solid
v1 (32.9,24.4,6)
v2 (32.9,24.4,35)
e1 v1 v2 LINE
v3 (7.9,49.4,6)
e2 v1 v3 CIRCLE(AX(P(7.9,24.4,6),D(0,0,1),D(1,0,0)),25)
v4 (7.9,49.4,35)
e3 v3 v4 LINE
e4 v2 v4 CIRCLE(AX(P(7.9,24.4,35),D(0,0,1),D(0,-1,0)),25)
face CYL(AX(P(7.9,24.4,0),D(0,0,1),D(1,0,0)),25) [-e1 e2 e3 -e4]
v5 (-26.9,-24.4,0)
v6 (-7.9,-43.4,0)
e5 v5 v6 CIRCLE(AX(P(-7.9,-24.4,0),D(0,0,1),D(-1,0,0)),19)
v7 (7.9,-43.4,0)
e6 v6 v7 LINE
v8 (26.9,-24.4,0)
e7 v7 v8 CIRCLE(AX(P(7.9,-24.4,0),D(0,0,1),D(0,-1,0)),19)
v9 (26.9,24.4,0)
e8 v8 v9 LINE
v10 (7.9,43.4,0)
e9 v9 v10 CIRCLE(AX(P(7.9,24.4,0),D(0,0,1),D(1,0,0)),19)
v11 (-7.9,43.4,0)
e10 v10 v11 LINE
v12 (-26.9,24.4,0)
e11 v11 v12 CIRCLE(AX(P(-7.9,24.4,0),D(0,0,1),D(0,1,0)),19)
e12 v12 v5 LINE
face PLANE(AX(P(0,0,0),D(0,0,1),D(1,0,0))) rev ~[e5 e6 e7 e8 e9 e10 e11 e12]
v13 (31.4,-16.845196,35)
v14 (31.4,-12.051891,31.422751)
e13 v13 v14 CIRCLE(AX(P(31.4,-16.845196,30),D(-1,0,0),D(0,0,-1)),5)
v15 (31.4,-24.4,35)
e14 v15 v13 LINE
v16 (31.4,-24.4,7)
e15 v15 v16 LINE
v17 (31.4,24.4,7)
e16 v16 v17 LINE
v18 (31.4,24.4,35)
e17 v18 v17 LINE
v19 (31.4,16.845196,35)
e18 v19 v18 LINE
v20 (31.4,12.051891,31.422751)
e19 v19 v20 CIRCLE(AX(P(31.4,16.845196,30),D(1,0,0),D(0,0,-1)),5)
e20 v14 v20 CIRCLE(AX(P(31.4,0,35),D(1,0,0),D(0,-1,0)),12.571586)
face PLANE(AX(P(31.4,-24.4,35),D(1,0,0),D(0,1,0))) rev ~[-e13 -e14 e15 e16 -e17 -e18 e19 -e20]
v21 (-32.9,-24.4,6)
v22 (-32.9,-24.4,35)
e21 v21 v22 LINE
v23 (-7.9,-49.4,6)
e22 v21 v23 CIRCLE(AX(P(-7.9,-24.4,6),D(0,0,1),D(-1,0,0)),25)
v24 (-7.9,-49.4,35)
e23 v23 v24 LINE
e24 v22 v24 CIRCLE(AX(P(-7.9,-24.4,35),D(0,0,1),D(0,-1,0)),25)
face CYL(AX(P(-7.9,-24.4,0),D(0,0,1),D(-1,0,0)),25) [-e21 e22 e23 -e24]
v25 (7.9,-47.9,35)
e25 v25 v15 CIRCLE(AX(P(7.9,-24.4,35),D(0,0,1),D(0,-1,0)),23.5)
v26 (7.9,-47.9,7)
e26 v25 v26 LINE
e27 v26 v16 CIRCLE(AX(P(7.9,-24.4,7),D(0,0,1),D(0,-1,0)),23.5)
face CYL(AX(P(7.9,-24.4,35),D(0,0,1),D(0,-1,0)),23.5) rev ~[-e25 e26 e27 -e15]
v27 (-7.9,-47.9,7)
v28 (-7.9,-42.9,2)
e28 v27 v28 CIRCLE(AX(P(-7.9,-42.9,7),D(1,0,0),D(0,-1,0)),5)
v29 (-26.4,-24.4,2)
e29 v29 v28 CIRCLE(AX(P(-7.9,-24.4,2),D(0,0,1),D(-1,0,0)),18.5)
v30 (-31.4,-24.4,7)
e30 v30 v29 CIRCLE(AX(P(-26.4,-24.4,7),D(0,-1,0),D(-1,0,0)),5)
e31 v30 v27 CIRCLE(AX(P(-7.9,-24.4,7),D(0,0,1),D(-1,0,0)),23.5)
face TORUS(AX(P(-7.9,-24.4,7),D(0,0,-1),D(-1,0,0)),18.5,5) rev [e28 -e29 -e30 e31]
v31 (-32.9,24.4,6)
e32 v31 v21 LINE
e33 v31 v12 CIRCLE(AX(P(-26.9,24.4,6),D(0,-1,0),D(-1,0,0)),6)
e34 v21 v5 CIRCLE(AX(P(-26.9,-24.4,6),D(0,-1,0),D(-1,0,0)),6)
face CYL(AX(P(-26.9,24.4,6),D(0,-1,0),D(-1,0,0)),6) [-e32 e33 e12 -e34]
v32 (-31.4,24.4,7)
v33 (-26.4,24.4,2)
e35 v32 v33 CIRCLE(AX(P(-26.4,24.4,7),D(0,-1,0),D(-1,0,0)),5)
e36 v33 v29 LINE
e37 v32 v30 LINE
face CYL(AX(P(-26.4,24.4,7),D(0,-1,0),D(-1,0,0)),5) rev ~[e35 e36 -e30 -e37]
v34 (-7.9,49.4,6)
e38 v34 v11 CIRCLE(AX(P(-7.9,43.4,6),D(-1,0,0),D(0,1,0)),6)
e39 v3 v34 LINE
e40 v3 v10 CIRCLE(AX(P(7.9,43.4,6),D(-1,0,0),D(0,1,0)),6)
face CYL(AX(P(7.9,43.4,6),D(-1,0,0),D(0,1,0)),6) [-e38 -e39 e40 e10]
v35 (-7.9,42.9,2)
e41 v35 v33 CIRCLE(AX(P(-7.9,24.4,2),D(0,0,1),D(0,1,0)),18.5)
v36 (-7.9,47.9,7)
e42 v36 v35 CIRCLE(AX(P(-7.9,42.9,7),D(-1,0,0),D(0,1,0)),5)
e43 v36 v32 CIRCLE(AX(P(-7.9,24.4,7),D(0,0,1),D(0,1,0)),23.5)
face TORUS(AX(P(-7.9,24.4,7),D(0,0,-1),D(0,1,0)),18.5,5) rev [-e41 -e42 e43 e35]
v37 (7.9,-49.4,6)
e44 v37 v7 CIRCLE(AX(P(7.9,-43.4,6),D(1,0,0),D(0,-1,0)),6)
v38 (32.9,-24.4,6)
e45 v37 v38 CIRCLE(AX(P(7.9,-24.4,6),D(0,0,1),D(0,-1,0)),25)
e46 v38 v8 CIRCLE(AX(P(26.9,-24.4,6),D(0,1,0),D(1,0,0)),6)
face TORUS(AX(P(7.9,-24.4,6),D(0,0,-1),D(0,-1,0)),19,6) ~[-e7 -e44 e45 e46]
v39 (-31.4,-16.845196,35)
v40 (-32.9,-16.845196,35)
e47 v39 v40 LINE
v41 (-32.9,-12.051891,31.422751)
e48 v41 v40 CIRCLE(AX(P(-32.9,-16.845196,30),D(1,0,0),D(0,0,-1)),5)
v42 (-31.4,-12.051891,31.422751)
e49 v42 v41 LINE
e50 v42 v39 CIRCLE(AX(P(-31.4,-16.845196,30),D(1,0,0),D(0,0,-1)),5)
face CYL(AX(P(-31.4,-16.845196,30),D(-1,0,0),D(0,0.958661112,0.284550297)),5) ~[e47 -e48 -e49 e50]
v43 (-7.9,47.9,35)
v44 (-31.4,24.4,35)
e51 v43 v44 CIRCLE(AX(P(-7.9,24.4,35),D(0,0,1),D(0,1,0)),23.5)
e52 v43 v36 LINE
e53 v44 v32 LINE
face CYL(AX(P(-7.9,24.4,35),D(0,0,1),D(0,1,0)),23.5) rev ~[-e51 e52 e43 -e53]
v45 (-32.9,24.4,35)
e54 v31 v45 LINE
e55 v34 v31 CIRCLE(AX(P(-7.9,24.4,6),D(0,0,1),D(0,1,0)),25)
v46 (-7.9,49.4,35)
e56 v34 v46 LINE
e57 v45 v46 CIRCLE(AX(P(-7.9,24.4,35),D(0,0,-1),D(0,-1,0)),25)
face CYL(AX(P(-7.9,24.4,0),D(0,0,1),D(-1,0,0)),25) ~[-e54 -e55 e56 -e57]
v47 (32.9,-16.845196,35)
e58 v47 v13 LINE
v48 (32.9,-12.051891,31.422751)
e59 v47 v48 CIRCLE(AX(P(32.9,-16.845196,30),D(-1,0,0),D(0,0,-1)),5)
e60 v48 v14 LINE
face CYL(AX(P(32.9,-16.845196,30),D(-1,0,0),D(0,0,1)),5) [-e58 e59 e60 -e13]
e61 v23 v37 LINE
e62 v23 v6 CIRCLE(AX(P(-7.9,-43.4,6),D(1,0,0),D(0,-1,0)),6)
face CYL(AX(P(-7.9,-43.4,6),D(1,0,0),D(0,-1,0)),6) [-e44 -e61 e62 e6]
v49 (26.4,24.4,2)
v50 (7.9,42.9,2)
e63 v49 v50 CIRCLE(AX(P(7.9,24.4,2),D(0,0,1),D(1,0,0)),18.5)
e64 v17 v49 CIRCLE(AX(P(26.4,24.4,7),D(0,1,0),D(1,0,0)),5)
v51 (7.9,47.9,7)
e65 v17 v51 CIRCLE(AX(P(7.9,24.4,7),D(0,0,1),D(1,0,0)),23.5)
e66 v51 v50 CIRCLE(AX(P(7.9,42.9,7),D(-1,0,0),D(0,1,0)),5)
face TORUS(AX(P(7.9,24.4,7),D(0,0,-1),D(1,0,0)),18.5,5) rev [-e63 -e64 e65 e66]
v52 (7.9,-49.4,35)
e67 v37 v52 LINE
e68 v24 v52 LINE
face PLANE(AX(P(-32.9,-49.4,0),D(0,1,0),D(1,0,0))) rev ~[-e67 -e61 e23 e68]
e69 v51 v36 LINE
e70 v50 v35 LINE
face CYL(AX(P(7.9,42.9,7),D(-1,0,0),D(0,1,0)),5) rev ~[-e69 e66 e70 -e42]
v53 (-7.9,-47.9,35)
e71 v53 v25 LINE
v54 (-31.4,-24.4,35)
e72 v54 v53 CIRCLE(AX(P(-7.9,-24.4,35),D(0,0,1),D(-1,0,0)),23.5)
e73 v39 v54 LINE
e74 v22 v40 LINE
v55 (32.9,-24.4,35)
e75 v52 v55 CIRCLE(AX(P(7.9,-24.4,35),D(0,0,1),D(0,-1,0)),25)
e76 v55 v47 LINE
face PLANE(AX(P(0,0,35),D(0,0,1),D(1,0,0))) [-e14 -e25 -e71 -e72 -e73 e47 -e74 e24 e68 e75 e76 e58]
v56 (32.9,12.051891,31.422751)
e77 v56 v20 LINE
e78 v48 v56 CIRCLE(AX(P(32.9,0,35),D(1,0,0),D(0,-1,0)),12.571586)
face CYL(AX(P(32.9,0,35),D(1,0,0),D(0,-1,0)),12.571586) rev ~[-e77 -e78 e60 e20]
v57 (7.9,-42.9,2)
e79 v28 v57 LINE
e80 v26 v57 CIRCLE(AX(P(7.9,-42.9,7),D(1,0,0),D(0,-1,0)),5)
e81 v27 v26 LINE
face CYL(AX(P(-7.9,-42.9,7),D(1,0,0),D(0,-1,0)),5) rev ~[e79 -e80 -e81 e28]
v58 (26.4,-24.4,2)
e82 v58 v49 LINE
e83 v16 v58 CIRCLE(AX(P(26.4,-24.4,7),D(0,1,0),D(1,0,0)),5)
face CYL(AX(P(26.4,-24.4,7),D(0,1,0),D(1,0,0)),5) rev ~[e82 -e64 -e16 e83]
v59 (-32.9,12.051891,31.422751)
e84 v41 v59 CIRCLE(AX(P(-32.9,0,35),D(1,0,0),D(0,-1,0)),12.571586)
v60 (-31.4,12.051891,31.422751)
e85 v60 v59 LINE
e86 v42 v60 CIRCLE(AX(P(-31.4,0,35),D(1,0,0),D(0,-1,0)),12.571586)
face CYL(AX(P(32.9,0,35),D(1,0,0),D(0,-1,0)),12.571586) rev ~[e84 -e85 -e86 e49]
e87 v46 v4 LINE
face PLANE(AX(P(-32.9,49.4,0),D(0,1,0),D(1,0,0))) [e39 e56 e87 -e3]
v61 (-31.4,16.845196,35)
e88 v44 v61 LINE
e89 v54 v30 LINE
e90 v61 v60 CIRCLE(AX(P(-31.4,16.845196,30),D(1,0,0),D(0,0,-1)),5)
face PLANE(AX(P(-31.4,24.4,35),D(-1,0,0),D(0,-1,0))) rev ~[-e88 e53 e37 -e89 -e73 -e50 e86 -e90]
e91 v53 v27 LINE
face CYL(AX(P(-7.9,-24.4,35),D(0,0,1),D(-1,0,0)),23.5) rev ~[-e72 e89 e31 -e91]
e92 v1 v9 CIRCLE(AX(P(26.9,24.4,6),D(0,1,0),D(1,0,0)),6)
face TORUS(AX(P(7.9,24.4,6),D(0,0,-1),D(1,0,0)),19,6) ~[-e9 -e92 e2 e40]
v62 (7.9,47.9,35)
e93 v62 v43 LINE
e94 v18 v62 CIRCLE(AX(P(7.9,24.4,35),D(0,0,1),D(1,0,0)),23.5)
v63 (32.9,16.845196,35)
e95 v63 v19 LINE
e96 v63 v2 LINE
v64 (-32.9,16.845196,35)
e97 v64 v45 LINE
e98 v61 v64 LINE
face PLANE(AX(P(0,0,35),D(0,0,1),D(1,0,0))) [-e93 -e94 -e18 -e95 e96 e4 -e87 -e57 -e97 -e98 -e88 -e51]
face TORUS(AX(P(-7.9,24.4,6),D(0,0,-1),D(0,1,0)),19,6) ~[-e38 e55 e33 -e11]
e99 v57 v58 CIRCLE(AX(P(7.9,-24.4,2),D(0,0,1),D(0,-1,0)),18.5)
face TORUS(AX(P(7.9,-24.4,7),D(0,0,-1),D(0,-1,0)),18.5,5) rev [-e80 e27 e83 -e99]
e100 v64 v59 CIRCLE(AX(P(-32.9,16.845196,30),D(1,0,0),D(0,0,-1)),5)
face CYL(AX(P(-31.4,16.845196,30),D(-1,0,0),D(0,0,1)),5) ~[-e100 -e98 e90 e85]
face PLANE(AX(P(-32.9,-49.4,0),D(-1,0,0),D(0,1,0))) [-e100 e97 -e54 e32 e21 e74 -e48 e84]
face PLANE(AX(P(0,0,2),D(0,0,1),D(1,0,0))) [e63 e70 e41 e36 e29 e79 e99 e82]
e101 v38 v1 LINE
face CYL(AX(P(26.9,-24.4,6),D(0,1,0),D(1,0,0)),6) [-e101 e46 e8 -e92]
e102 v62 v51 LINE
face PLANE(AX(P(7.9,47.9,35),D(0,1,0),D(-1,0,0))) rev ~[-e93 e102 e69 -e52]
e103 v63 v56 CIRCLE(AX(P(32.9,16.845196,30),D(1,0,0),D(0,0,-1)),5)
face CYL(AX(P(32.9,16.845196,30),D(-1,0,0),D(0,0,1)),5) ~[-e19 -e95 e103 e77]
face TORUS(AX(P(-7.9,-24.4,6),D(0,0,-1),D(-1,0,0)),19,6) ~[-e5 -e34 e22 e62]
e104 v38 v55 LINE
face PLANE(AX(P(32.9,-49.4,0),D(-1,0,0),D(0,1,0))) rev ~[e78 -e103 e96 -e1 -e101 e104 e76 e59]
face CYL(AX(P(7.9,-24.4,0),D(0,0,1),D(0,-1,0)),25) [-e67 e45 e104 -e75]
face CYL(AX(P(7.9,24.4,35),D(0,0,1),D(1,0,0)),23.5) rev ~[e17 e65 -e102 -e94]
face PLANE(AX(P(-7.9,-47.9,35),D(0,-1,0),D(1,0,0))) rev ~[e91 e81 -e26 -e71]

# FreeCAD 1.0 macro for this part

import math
import FreeCAD as App
import Part
import Sketcher

V = App.Vector
Q = App.Units.Quantity


def edges_at(feature, points):
    """Names of the edges that pass closest to the given points."""
    edges = feature.Shape.Edges
    near = lambda p: min(range(len(edges)), key=lambda i: edges[i].distToShape(Part.Vertex(*p))[0])
    return sorted({f"Edge{near(p) + 1}" for p in points})

doc = App.newDocument("Part")
body = doc.addObject("PartDesign::Body", "Body")

sketch1 = body.newObject("Sketcher::SketchObject", "Sketch")
sketch1.AttachmentSupport = (doc.getObject("XY_Plane"), [""])
sketch1.MapMode = "FlatFace"
sketch1.addGeometry(Part.LineSegment(V(-33, 49, 0), V(-33, -49, 0)), False)
sketch1.addGeometry(Part.LineSegment(V(-33, -49, 0), V(33, -49, 0)), False)
sketch1.addGeometry(Part.LineSegment(V(33, -49, 0), V(33, 49, 0)), False)
sketch1.addGeometry(Part.LineSegment(V(33, 49, 0), V(-33, 49, 0)), False)
sketch1.addConstraint(Sketcher.Constraint("Coincident", 0, 2, 1, 1))
sketch1.addConstraint(Sketcher.Constraint("Coincident", 1, 2, 2, 1))
sketch1.addConstraint(Sketcher.Constraint("Coincident", 2, 2, 3, 1))
sketch1.addConstraint(Sketcher.Constraint("Coincident", 3, 2, 0, 1))
sketch1.addConstraint(Sketcher.Constraint("Vertical", 0))
sketch1.addConstraint(Sketcher.Constraint("Horizontal", 1))
sketch1.addConstraint(Sketcher.Constraint("Vertical", 2))
sketch1.addConstraint(Sketcher.Constraint("Horizontal", 3))
sketch1.addConstraint(Sketcher.Constraint("Symmetric", 0, 2, 2, 2, -1, 1))
sketch1.addConstraint(Sketcher.Constraint("DistanceX", 1, 1, 1, 2, Q("65.8 mm")))
sketch1.addConstraint(Sketcher.Constraint("DistanceY", 0, 2, 0, 1, Q("98.8 mm")))
pad1 = body.newObject("PartDesign::Pad", "Pad")
pad1.Profile = sketch1
pad1.Length = 35
doc.recompute()

fillet = body.newObject("PartDesign::Fillet", "Fillet")
fillet.Base = (pad1, edges_at(pad1, [
    (32.9, 49.4, 17.5),
    (-32.9, 49.4, 17.5),
    (32.9, -49.4, 17.5),
    (-32.9, -49.4, 17.5),
]))
fillet.Radius = 25

sketch2 = body.newObject("Sketcher::SketchObject", "Sketch001")
sketch2.AttachmentSupport = (doc.getObject("XY_Plane"), [""])
sketch2.MapMode = "FlatFace"
sketch2.AttachmentOffset = App.Placement(V(0, 0, 35), App.Rotation())
sketch2.addGeometry(Part.LineSegment(V(31, -24, 0), V(31, 24, 0)), False)
sketch2.addGeometry(Part.ArcOfCircle(Part.Circle(V(8, 24, 0), V(0, 0, 1), 24), math.radians(0), math.radians(90)), False)
sketch2.addGeometry(Part.LineSegment(V(8, 48, 0), V(-8, 48, 0)), False)
sketch2.addGeometry(Part.ArcOfCircle(Part.Circle(V(-8, 24, 0), V(0, 0, 1), 24), math.radians(90), math.radians(180)), False)
sketch2.addGeometry(Part.LineSegment(V(-31, 24, 0), V(-31, -24, 0)), False)
sketch2.addGeometry(Part.ArcOfCircle(Part.Circle(V(-8, -24, 0), V(0, 0, 1), 24), math.radians(180), math.radians(270)), False)
sketch2.addGeometry(Part.LineSegment(V(-8, -48, 0), V(8, -48, 0)), False)
sketch2.addGeometry(Part.ArcOfCircle(Part.Circle(V(8, -24, 0), V(0, 0, 1), 24), math.radians(-90), math.radians(0)), False)
sketch2.addConstraint(Sketcher.Constraint("Tangent", 0, 2, 1, 1))
sketch2.addConstraint(Sketcher.Constraint("Tangent", 1, 2, 2, 1))
sketch2.addConstraint(Sketcher.Constraint("Tangent", 2, 2, 3, 1))
sketch2.addConstraint(Sketcher.Constraint("Tangent", 3, 2, 4, 1))
sketch2.addConstraint(Sketcher.Constraint("Tangent", 4, 2, 5, 1))
sketch2.addConstraint(Sketcher.Constraint("Tangent", 5, 2, 6, 1))
sketch2.addConstraint(Sketcher.Constraint("Tangent", 6, 2, 7, 1))
sketch2.addConstraint(Sketcher.Constraint("Tangent", 7, 2, 0, 1))
sketch2.addConstraint(Sketcher.Constraint("Vertical", 0))
sketch2.addConstraint(Sketcher.Constraint("Horizontal", 2))
sketch2.addConstraint(Sketcher.Constraint("Vertical", 4))
sketch2.addConstraint(Sketcher.Constraint("Horizontal", 6))
sketch2.addConstraint(Sketcher.Constraint("Equal", 1, 3))
sketch2.addConstraint(Sketcher.Constraint("Equal", 3, 5))
sketch2.addConstraint(Sketcher.Constraint("Equal", 5, 7))
sketch2.addConstraint(Sketcher.Constraint("Symmetric", 1, 3, 5, 3, -1, 1))
sketch2.addConstraint(Sketcher.Constraint("Radius", 1, Q("23.5 mm")))
sketch2.addConstraint(Sketcher.Constraint("DistanceX", 2, 2, 2, 1, Q("15.8 mm")))
sketch2.addConstraint(Sketcher.Constraint("DistanceY", 0, 1, 0, 2, Q("48.8 mm")))
pocket1 = body.newObject("PartDesign::Pocket", "Pocket")
pocket1.Profile = sketch2
pocket1.Length = 33

sketch3 = body.newObject("Sketcher::SketchObject", "Sketch002")
sketch3.AttachmentSupport = (doc.getObject("YZ_Plane"), [""])
sketch3.MapMode = "FlatFace"
sketch3.AttachmentOffset = App.Placement(V(0, 0, 32.9), App.Rotation())
sketch3.addGeometry(Part.ArcOfCircle(Part.Circle(V(0, 35, 0), V(0, 0, 1), 13), math.radians(180), math.radians(360)), False)
sketch3.addGeometry(Part.LineSegment(V(13, 35, 0), V(-13, 35, 0)), False)
sketch3.addConstraint(Sketcher.Constraint("Coincident", 0, 1, 1, 2))
sketch3.addConstraint(Sketcher.Constraint("Coincident", 1, 1, 0, 2))
sketch3.addConstraint(Sketcher.Constraint("Horizontal", 1))
sketch3.addConstraint(Sketcher.Constraint("PointOnObject", 0, 3, -2))
sketch3.addConstraint(Sketcher.Constraint("DistanceY", -1, 1, 0, 3, Q("35 mm")))
sketch3.addConstraint(Sketcher.Constraint("DistanceY", -1, 1, 0, 1, Q("35 mm")))
sketch3.addConstraint(Sketcher.Constraint("Radius", 0, Q("12.571586 mm")))
pocket2 = body.newObject("PartDesign::Pocket", "Pocket001")
pocket2.Profile = sketch3
pocket2.Type = "ThroughAll"
doc.recompute()

fillet2 = body.newObject("PartDesign::Fillet", "Fillet001")
fillet2.Base = (pocket2, edges_at(pocket2, [
    (32.15, 12.572, 35),
    (-32.15, 12.572, 35),
    (32.15, -12.572, 35),
    (-32.15, -12.572, 35),
]))
fillet2.Radius = 5
doc.recompute()

fillet3 = body.newObject("PartDesign::Fillet", "Fillet002")
fillet3.Base = (fillet2, edges_at(fillet2, [(-24.517, 41.017, 2)]))
fillet3.Radius = 5
doc.recompute()

fillet4 = body.newObject("PartDesign::Fillet", "Fillet003")
fillet4.Base = (fillet3, edges_at(fillet3, [(-25.578, -42.078, 0)]))
fillet4.Radius = 6

doc.recompute()
